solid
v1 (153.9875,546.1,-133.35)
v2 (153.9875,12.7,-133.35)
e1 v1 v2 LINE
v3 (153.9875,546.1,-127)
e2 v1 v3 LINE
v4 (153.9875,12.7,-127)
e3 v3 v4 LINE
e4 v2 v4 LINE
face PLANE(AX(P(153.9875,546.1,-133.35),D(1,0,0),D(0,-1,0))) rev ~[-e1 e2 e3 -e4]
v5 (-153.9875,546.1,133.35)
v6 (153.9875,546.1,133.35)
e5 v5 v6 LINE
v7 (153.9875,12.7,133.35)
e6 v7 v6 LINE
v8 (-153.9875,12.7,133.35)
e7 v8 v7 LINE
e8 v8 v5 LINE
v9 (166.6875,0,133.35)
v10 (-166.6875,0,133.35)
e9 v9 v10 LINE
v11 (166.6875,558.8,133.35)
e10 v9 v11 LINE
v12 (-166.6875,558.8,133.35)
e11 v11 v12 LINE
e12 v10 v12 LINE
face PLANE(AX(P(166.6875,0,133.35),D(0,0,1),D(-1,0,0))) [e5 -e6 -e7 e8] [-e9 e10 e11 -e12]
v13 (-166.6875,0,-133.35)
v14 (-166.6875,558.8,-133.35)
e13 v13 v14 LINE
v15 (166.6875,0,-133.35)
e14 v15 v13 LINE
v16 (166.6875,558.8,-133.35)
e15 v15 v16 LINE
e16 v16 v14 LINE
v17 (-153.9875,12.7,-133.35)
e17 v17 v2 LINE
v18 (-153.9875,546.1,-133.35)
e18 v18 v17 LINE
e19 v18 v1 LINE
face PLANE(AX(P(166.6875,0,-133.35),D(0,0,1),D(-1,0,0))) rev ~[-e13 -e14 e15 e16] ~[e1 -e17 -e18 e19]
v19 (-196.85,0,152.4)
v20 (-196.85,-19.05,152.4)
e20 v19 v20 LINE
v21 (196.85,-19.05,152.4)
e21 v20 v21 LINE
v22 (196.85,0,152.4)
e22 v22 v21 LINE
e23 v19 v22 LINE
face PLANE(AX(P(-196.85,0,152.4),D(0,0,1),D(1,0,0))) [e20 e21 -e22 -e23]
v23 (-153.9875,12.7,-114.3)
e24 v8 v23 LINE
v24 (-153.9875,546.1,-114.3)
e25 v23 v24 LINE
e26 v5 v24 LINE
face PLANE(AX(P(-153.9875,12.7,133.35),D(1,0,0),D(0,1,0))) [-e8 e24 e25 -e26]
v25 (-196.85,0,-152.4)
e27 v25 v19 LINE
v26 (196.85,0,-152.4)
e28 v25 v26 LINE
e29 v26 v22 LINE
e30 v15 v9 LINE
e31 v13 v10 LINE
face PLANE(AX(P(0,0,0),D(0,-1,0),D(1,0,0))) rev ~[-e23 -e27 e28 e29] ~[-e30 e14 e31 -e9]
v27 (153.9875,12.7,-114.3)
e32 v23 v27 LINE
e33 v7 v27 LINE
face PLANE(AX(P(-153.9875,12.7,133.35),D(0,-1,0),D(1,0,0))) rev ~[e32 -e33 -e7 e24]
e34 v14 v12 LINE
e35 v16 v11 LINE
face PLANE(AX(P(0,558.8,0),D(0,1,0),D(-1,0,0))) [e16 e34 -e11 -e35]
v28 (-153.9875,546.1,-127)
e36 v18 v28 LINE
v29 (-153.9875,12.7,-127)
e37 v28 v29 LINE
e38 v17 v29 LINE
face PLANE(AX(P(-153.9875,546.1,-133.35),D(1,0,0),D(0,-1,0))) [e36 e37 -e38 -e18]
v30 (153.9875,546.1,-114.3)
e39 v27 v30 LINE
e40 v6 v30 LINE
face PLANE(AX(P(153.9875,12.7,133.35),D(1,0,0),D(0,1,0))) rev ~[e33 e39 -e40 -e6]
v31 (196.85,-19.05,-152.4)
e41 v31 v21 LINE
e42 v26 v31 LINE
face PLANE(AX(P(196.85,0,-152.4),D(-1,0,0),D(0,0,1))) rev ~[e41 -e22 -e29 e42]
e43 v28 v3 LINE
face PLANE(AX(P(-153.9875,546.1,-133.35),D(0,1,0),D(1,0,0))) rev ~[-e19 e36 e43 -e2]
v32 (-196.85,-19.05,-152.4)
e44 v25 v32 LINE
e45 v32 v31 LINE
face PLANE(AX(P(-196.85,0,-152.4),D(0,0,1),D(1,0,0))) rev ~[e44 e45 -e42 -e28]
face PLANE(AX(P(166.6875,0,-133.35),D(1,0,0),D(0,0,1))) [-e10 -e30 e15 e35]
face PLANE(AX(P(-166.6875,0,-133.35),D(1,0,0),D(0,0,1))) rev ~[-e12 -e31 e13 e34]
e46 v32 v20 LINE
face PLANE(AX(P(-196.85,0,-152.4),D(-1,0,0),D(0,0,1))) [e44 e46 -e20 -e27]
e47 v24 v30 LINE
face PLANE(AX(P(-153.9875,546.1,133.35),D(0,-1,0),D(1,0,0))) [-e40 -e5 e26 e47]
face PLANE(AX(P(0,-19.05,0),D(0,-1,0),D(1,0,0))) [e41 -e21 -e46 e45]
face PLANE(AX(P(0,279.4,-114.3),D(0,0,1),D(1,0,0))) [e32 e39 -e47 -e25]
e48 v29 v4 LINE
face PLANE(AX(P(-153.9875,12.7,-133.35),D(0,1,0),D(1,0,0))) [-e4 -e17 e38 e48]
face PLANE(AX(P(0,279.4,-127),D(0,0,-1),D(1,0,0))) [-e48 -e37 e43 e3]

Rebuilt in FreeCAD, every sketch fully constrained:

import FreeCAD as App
import Part
import Sketcher
from FreeCAD import Vector
Q = App.Units.Quantity

doc = App.newDocument("Part")
body = doc.addObject("PartDesign::Body", "Body")

# Sketch on XZ plane
sketch1 = doc.addObject("Sketcher::SketchObject", "Sketch")
body.addObject(sketch1)
sketch1.AttachmentSupport = (doc.XZ_Plane, [""])
sketch1.MapMode = "FlatFace"
sketch1.addGeometry([
    Part.LineSegment(Vector(-197, 152, 0), Vector(-197, -152, 0)),
    Part.LineSegment(Vector(-197, -152, 0), Vector(197, -152, 0)),
    Part.LineSegment(Vector(197, -152, 0), Vector(197, 152, 0)),
    Part.LineSegment(Vector(197, 152, 0), Vector(-197, 152, 0)),
], False)
sketch1.addConstraint([
    Sketcher.Constraint("Coincident", 0, 2, 1, 1),
    Sketcher.Constraint("Coincident", 1, 2, 2, 1),
    Sketcher.Constraint("Coincident", 2, 2, 3, 1),
    Sketcher.Constraint("Coincident", 3, 2, 0, 1),
    Sketcher.Constraint("Vertical", 0),
    Sketcher.Constraint("Horizontal", 1),
    Sketcher.Constraint("Vertical", 2),
    Sketcher.Constraint("Horizontal", 3),
    Sketcher.Constraint("Symmetric", 0, 2, 2, 2, -1, 1),
    Sketcher.Constraint("DistanceY", 0, 2, 0, 1, Q("12 in")),
    Sketcher.Constraint("DistanceX", 1, 1, 1, 2, Q("15.5 in")),
])
pad1 = doc.addObject("PartDesign::Pad", "Pad")
body.addObject(pad1)
pad1.Profile = sketch1
pad1.Length = Q("0.75 in")

# Sketch on XZ plane
sketch2 = doc.addObject("Sketcher::SketchObject", "Sketch001")
body.addObject(sketch2)
sketch2.AttachmentSupport = (doc.XZ_Plane, [""])
sketch2.MapMode = "FlatFace"
sketch2.addGeometry([
    Part.LineSegment(Vector(167, 133, 0), Vector(167, -133, 0)),
    Part.LineSegment(Vector(167, -133, 0), Vector(-167, -133, 0)),
    Part.LineSegment(Vector(-167, -133, 0), Vector(-167, 133, 0)),
    Part.LineSegment(Vector(-167, 133, 0), Vector(167, 133, 0)),
], False)
sketch2.addConstraint([
    Sketcher.Constraint("Coincident", 0, 2, 1, 1),
    Sketcher.Constraint("Coincident", 1, 2, 2, 1),
    Sketcher.Constraint("Coincident", 2, 2, 3, 1),
    Sketcher.Constraint("Coincident", 3, 2, 0, 1),
    Sketcher.Constraint("Vertical", 0),
    Sketcher.Constraint("Horizontal", 1),
    Sketcher.Constraint("Vertical", 2),
    Sketcher.Constraint("Horizontal", 3),
    Sketcher.Constraint("Symmetric", 0, 2, 2, 2, -1, 1),
    Sketcher.Constraint("DistanceY", 0, 2, 0, 1, Q("10.5 in")),
    Sketcher.Constraint("DistanceX", 1, 2, 1, 1, Q("13.125 in")),
])
pad2 = doc.addObject("PartDesign::Pad", "Pad001")
body.addObject(pad2)
pad2.Profile = sketch2
pad2.Length = Q("22 in")
pad2.Reversed = True

# Sketch on XY plane
sketch3 = doc.addObject("Sketcher::SketchObject", "Sketch002")
body.addObject(sketch3)
sketch3.AttachmentSupport = (doc.XY_Plane, [""])
sketch3.MapMode = "FlatFace"
sketch3.AttachmentOffset = App.Placement(Vector(0, 0, 5.25 * 25.4), App.Rotation())
sketch3.addGeometry([
    Part.LineSegment(Vector(-154, 546, 0), Vector(-154, 13, 0)),
    Part.LineSegment(Vector(-154, 13, 0), Vector(154, 13, 0)),
    Part.LineSegment(Vector(154, 13, 0), Vector(154, 546, 0)),
    Part.LineSegment(Vector(154, 546, 0), Vector(-154, 546, 0)),
], False)
sketch3.addConstraint([
    Sketcher.Constraint("Coincident", 0, 2, 1, 1),
    Sketcher.Constraint("Coincident", 1, 2, 2, 1),
    Sketcher.Constraint("Coincident", 2, 2, 3, 1),
    Sketcher.Constraint("Coincident", 3, 2, 0, 1),
    Sketcher.Constraint("Vertical", 0),
    Sketcher.Constraint("Horizontal", 1),
    Sketcher.Constraint("Vertical", 2),
    Sketcher.Constraint("Horizontal", 3),
    Sketcher.Constraint("DistanceY", 0, 2, 0, 1, Q("21 in")),
    Sketcher.Constraint("DistanceY", -1, 1, 0, 2, Q("0.5 in")),
    Sketcher.Constraint("DistanceX", 1, 1, 1, 2, Q("12.125 in")),
    Sketcher.Constraint("DistanceX", 0, 2, -1, 1, Q("6.0625 in")),
])
pocket1 = doc.addObject("PartDesign::Pocket", "Pocket")
body.addObject(pocket1)
pocket1.Profile = sketch3
pocket1.Length = Q("9.75 in")

# Sketch on XY plane
sketch4 = doc.addObject("Sketcher::SketchObject", "Sketch003")
body.addObject(sketch4)
sketch4.AttachmentSupport = (doc.XY_Plane, [""])
sketch4.MapMode = "FlatFace"
sketch4.AttachmentOffset = App.Placement(Vector(0, 0, -5.25 * 25.4), App.Rotation())
sketch4.addGeometry([
    Part.LineSegment(Vector(-154, 13, 0), Vector(-154, 546, 0)),
    Part.LineSegment(Vector(-154, 546, 0), Vector(154, 546, 0)),
    Part.LineSegment(Vector(154, 546, 0), Vector(154, 13, 0)),
    Part.LineSegment(Vector(154, 13, 0), Vector(-154, 13, 0)),
], False)
sketch4.addConstraint([
    Sketcher.Constraint("Coincident", 0, 2, 1, 1),
    Sketcher.Constraint("Coincident", 1, 2, 2, 1),
    Sketcher.Constraint("Coincident", 2, 2, 3, 1),
    Sketcher.Constraint("Coincident", 3, 2, 0, 1),
    Sketcher.Constraint("Vertical", 0),
    Sketcher.Constraint("Horizontal", 1),
    Sketcher.Constraint("Vertical", 2),
    Sketcher.Constraint("Horizontal", 3),
    Sketcher.Constraint("DistanceY", 0, 1, 0, 2, Q("21 in")),
    Sketcher.Constraint("DistanceY", -1, 1, 0, 2, Q("21.5 in")),
    Sketcher.Constraint("DistanceX", 1, 1, 1, 2, Q("12.125 in")),
    Sketcher.Constraint("DistanceX", 0, 2, -1, 1, Q("6.0625 in")),
])
pocket2 = doc.addObject("PartDesign::Pocket", "Pocket001")
body.addObject(pocket2)
pocket2.Profile = sketch4
pocket2.Length = Q("0.25 in")
pocket2.Reversed = True

doc.recompute()
